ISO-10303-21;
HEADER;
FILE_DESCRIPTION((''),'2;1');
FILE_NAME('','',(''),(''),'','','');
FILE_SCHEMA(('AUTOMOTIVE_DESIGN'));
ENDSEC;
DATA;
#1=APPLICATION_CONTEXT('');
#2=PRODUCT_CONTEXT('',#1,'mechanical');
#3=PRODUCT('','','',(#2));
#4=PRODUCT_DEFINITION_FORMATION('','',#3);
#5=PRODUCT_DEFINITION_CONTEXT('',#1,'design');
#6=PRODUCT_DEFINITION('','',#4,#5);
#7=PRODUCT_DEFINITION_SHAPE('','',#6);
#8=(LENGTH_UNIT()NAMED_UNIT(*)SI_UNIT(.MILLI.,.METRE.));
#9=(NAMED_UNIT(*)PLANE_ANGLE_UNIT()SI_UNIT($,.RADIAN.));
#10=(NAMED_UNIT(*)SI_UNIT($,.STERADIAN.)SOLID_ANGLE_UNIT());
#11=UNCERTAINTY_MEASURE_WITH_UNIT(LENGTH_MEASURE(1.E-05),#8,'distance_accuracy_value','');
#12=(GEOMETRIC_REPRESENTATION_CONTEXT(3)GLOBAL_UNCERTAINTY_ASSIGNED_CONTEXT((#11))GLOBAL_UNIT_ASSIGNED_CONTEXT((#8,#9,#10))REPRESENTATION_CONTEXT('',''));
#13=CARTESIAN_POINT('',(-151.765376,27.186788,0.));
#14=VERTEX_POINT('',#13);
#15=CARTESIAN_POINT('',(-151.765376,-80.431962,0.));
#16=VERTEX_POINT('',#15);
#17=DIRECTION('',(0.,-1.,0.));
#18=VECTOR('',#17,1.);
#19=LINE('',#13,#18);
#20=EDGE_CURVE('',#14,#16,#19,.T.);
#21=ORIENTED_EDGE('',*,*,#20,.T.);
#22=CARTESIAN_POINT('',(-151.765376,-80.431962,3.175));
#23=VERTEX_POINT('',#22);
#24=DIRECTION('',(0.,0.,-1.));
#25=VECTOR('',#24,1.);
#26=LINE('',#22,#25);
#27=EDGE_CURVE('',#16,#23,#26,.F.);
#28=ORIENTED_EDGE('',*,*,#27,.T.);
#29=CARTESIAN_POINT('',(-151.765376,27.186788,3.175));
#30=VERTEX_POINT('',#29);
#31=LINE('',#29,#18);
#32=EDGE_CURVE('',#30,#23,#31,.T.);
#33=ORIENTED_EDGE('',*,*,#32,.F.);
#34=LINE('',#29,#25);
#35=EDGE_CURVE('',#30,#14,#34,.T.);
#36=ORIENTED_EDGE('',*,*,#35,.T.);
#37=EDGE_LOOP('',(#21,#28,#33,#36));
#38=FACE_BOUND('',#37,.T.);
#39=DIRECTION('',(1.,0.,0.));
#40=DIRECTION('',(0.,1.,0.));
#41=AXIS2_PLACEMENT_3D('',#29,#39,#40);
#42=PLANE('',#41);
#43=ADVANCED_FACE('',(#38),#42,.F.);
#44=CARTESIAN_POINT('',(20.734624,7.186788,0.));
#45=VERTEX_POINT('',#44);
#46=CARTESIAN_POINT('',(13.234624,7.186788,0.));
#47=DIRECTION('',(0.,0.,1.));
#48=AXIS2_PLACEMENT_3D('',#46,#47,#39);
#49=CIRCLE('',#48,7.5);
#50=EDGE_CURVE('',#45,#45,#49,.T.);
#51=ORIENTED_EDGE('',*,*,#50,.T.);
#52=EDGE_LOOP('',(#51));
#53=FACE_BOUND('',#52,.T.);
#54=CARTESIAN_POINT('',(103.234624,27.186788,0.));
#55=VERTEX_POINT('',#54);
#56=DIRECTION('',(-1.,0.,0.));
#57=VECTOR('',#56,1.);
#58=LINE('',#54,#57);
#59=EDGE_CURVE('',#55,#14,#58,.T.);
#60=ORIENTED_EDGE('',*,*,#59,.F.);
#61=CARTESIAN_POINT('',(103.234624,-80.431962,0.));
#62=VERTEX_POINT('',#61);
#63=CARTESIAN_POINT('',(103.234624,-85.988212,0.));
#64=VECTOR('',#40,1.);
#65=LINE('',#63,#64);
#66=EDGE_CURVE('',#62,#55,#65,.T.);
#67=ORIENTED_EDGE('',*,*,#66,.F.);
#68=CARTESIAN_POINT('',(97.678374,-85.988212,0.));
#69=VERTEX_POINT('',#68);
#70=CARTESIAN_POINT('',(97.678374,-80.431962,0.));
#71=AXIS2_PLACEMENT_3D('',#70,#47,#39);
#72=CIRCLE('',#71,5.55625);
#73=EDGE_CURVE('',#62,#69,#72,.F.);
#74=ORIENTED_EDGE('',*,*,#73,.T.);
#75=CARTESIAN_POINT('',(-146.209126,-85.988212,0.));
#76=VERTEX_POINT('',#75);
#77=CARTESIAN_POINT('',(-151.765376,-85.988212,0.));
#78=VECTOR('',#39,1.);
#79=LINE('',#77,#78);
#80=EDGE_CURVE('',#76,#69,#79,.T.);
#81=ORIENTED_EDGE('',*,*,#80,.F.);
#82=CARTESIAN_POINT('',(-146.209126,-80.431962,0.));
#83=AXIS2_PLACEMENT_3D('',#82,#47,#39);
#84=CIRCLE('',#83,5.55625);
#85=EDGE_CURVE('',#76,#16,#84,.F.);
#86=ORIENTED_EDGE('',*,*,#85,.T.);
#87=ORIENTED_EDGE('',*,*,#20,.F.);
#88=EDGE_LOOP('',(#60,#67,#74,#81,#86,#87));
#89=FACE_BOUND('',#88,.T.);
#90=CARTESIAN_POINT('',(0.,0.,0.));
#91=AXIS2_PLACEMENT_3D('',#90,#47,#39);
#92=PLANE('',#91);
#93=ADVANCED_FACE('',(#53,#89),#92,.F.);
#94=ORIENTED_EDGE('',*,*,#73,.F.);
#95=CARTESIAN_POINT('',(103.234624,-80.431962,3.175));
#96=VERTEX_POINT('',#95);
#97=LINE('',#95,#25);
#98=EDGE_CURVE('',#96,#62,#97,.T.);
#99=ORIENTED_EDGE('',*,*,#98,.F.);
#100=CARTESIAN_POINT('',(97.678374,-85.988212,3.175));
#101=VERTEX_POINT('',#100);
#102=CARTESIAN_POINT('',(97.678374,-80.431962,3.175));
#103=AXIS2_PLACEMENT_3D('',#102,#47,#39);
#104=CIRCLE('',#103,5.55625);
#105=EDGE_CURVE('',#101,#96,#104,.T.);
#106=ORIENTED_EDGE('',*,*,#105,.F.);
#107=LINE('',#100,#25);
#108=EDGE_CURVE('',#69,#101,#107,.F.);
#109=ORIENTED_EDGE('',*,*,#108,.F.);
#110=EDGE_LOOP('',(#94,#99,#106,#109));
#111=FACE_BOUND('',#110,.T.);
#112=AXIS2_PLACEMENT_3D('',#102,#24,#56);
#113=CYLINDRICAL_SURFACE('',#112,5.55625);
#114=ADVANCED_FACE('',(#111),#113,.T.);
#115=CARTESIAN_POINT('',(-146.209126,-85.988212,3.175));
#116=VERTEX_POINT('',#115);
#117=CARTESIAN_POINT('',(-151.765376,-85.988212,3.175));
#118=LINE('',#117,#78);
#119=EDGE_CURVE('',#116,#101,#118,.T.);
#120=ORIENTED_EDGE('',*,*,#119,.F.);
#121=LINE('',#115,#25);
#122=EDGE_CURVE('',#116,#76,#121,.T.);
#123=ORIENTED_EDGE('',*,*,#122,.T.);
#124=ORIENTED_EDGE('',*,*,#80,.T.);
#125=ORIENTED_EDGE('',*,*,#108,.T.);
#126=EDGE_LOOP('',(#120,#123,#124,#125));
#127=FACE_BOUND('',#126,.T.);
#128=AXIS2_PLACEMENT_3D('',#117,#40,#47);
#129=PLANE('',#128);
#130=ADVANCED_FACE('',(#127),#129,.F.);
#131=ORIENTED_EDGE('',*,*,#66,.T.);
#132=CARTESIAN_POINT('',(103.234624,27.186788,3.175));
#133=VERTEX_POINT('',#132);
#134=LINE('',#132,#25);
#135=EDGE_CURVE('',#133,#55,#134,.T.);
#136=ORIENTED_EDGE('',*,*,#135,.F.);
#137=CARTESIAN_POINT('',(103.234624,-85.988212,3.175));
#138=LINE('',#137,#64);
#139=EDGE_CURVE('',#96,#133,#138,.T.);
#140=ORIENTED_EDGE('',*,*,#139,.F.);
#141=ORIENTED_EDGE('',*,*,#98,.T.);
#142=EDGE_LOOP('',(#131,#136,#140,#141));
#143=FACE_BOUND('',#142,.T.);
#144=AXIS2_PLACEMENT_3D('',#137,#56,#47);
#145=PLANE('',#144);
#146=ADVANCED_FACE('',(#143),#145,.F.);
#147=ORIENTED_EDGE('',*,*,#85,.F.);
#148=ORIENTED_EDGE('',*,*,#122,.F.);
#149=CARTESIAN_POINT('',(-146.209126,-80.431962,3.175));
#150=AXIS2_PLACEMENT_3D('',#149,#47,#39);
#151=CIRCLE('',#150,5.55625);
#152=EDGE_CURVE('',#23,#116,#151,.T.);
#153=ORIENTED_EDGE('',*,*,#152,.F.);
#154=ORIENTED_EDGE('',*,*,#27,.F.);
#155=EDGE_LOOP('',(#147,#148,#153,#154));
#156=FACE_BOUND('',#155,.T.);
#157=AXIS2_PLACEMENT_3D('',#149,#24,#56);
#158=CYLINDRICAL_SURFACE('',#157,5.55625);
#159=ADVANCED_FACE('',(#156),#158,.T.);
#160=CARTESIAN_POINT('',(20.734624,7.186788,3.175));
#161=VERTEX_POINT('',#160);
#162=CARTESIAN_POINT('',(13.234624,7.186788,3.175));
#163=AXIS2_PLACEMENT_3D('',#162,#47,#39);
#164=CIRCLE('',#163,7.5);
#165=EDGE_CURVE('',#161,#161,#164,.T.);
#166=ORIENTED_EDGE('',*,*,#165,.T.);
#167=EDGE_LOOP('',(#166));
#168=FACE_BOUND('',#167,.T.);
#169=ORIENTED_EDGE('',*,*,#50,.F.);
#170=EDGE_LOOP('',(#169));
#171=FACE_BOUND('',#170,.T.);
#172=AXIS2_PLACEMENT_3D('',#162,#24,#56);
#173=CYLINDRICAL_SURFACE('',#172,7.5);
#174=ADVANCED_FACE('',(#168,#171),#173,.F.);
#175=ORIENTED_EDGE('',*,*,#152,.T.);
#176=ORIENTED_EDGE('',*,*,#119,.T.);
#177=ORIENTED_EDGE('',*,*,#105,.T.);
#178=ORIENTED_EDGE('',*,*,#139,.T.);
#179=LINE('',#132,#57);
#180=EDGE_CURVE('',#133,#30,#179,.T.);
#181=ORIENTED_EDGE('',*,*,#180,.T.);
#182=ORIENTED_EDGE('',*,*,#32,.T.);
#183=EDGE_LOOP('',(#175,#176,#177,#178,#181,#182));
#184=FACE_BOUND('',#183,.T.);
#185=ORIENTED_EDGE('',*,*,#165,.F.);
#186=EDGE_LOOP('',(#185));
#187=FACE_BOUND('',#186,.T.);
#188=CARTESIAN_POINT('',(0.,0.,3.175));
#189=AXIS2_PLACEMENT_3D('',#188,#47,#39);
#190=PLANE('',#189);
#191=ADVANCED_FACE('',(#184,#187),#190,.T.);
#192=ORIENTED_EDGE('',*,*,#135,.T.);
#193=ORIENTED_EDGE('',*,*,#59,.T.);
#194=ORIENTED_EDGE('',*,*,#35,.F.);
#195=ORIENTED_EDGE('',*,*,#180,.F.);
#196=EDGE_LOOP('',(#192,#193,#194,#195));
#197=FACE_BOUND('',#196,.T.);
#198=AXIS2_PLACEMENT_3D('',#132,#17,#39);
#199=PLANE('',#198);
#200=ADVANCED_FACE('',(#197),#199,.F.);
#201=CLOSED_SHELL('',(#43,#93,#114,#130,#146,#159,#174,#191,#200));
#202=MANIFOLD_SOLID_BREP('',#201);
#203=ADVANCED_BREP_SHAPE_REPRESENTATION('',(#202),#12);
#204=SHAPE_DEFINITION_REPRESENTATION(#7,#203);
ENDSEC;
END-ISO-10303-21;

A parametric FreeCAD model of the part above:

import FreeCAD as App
import Part
import Sketcher

V = App.Vector


def edges_at(feature, points):
    """Names of the edges that pass closest to the given points."""
    edges = feature.Shape.Edges
    near = lambda p: min(range(len(edges)), key=lambda i: edges[i].distToShape(Part.Vertex(*p))[0])
    return sorted({f"Edge{near(p) + 1}" for p in points})

doc = App.newDocument("Part")
body = doc.addObject("PartDesign::Body", "Body")

sketch1 = body.newObject("Sketcher::SketchObject", "Sketch")
sketch1.AttachmentSupport = (doc.getObject("XY_Plane"), [""])
sketch1.MapMode = "FlatFace"
sketch1.addGeometry([
    Part.LineSegment(V(-151.765376, 27.186788, 0), V(-151.765376, -85.988212, 0)),
    Part.LineSegment(V(-151.765376, -85.988212, 0), V(103.234624, -85.988212, 0)),
    Part.LineSegment(V(103.234624, -85.988212, 0), V(103.234624, 27.186788, 0)),
    Part.LineSegment(V(103.234624, 27.186788, 0), V(-151.765376, 27.186788, 0)),
    Part.Circle(V(13.234624, 7.186788, 0), V(0, 0, 1), 7.5),
], False)
sketch1.addConstraint([
    Sketcher.Constraint("Coincident", 0, 2, 1, 1),
    Sketcher.Constraint("Coincident", 1, 2, 2, 1),
    Sketcher.Constraint("Coincident", 2, 2, 3, 1),
    Sketcher.Constraint("Coincident", 3, 2, 0, 1),
    Sketcher.Constraint("Vertical", 0),
    Sketcher.Constraint("Horizontal", 1),
    Sketcher.Constraint("Vertical", 2),
    Sketcher.Constraint("Horizontal", 3),
    Sketcher.Constraint("Diameter", 4, 15.0),
    Sketcher.Constraint("DistanceX", 1, 1, 1, 2, 255.0),
    Sketcher.Constraint("DistanceX", 0, 2, 4, 3, 165.0),
    Sketcher.Constraint("DistanceY", 4, 3, 2, 2, 20.0),
    Sketcher.Constraint("DistanceY", 0, 2, 0, 1, 113.175),
    Sketcher.Constraint("DistanceY", -1, 1, 4, 3, 7.186788),
    Sketcher.Constraint("DistanceX", -1, 1, 4, 3, 13.234624),
])
pad1 = body.newObject("PartDesign::Pad", "Pad")
pad1.Profile = sketch1
pad1.Length = 3.175
doc.recompute()

fillet = body.newObject("PartDesign::Fillet", "Fillet")
fillet.Base = (pad1, edges_at(pad1, [(103.235, -85.988, 1.587), (-151.765, -85.988, 1.587)]))
fillet.Radius = 5.55625

doc.recompute()
